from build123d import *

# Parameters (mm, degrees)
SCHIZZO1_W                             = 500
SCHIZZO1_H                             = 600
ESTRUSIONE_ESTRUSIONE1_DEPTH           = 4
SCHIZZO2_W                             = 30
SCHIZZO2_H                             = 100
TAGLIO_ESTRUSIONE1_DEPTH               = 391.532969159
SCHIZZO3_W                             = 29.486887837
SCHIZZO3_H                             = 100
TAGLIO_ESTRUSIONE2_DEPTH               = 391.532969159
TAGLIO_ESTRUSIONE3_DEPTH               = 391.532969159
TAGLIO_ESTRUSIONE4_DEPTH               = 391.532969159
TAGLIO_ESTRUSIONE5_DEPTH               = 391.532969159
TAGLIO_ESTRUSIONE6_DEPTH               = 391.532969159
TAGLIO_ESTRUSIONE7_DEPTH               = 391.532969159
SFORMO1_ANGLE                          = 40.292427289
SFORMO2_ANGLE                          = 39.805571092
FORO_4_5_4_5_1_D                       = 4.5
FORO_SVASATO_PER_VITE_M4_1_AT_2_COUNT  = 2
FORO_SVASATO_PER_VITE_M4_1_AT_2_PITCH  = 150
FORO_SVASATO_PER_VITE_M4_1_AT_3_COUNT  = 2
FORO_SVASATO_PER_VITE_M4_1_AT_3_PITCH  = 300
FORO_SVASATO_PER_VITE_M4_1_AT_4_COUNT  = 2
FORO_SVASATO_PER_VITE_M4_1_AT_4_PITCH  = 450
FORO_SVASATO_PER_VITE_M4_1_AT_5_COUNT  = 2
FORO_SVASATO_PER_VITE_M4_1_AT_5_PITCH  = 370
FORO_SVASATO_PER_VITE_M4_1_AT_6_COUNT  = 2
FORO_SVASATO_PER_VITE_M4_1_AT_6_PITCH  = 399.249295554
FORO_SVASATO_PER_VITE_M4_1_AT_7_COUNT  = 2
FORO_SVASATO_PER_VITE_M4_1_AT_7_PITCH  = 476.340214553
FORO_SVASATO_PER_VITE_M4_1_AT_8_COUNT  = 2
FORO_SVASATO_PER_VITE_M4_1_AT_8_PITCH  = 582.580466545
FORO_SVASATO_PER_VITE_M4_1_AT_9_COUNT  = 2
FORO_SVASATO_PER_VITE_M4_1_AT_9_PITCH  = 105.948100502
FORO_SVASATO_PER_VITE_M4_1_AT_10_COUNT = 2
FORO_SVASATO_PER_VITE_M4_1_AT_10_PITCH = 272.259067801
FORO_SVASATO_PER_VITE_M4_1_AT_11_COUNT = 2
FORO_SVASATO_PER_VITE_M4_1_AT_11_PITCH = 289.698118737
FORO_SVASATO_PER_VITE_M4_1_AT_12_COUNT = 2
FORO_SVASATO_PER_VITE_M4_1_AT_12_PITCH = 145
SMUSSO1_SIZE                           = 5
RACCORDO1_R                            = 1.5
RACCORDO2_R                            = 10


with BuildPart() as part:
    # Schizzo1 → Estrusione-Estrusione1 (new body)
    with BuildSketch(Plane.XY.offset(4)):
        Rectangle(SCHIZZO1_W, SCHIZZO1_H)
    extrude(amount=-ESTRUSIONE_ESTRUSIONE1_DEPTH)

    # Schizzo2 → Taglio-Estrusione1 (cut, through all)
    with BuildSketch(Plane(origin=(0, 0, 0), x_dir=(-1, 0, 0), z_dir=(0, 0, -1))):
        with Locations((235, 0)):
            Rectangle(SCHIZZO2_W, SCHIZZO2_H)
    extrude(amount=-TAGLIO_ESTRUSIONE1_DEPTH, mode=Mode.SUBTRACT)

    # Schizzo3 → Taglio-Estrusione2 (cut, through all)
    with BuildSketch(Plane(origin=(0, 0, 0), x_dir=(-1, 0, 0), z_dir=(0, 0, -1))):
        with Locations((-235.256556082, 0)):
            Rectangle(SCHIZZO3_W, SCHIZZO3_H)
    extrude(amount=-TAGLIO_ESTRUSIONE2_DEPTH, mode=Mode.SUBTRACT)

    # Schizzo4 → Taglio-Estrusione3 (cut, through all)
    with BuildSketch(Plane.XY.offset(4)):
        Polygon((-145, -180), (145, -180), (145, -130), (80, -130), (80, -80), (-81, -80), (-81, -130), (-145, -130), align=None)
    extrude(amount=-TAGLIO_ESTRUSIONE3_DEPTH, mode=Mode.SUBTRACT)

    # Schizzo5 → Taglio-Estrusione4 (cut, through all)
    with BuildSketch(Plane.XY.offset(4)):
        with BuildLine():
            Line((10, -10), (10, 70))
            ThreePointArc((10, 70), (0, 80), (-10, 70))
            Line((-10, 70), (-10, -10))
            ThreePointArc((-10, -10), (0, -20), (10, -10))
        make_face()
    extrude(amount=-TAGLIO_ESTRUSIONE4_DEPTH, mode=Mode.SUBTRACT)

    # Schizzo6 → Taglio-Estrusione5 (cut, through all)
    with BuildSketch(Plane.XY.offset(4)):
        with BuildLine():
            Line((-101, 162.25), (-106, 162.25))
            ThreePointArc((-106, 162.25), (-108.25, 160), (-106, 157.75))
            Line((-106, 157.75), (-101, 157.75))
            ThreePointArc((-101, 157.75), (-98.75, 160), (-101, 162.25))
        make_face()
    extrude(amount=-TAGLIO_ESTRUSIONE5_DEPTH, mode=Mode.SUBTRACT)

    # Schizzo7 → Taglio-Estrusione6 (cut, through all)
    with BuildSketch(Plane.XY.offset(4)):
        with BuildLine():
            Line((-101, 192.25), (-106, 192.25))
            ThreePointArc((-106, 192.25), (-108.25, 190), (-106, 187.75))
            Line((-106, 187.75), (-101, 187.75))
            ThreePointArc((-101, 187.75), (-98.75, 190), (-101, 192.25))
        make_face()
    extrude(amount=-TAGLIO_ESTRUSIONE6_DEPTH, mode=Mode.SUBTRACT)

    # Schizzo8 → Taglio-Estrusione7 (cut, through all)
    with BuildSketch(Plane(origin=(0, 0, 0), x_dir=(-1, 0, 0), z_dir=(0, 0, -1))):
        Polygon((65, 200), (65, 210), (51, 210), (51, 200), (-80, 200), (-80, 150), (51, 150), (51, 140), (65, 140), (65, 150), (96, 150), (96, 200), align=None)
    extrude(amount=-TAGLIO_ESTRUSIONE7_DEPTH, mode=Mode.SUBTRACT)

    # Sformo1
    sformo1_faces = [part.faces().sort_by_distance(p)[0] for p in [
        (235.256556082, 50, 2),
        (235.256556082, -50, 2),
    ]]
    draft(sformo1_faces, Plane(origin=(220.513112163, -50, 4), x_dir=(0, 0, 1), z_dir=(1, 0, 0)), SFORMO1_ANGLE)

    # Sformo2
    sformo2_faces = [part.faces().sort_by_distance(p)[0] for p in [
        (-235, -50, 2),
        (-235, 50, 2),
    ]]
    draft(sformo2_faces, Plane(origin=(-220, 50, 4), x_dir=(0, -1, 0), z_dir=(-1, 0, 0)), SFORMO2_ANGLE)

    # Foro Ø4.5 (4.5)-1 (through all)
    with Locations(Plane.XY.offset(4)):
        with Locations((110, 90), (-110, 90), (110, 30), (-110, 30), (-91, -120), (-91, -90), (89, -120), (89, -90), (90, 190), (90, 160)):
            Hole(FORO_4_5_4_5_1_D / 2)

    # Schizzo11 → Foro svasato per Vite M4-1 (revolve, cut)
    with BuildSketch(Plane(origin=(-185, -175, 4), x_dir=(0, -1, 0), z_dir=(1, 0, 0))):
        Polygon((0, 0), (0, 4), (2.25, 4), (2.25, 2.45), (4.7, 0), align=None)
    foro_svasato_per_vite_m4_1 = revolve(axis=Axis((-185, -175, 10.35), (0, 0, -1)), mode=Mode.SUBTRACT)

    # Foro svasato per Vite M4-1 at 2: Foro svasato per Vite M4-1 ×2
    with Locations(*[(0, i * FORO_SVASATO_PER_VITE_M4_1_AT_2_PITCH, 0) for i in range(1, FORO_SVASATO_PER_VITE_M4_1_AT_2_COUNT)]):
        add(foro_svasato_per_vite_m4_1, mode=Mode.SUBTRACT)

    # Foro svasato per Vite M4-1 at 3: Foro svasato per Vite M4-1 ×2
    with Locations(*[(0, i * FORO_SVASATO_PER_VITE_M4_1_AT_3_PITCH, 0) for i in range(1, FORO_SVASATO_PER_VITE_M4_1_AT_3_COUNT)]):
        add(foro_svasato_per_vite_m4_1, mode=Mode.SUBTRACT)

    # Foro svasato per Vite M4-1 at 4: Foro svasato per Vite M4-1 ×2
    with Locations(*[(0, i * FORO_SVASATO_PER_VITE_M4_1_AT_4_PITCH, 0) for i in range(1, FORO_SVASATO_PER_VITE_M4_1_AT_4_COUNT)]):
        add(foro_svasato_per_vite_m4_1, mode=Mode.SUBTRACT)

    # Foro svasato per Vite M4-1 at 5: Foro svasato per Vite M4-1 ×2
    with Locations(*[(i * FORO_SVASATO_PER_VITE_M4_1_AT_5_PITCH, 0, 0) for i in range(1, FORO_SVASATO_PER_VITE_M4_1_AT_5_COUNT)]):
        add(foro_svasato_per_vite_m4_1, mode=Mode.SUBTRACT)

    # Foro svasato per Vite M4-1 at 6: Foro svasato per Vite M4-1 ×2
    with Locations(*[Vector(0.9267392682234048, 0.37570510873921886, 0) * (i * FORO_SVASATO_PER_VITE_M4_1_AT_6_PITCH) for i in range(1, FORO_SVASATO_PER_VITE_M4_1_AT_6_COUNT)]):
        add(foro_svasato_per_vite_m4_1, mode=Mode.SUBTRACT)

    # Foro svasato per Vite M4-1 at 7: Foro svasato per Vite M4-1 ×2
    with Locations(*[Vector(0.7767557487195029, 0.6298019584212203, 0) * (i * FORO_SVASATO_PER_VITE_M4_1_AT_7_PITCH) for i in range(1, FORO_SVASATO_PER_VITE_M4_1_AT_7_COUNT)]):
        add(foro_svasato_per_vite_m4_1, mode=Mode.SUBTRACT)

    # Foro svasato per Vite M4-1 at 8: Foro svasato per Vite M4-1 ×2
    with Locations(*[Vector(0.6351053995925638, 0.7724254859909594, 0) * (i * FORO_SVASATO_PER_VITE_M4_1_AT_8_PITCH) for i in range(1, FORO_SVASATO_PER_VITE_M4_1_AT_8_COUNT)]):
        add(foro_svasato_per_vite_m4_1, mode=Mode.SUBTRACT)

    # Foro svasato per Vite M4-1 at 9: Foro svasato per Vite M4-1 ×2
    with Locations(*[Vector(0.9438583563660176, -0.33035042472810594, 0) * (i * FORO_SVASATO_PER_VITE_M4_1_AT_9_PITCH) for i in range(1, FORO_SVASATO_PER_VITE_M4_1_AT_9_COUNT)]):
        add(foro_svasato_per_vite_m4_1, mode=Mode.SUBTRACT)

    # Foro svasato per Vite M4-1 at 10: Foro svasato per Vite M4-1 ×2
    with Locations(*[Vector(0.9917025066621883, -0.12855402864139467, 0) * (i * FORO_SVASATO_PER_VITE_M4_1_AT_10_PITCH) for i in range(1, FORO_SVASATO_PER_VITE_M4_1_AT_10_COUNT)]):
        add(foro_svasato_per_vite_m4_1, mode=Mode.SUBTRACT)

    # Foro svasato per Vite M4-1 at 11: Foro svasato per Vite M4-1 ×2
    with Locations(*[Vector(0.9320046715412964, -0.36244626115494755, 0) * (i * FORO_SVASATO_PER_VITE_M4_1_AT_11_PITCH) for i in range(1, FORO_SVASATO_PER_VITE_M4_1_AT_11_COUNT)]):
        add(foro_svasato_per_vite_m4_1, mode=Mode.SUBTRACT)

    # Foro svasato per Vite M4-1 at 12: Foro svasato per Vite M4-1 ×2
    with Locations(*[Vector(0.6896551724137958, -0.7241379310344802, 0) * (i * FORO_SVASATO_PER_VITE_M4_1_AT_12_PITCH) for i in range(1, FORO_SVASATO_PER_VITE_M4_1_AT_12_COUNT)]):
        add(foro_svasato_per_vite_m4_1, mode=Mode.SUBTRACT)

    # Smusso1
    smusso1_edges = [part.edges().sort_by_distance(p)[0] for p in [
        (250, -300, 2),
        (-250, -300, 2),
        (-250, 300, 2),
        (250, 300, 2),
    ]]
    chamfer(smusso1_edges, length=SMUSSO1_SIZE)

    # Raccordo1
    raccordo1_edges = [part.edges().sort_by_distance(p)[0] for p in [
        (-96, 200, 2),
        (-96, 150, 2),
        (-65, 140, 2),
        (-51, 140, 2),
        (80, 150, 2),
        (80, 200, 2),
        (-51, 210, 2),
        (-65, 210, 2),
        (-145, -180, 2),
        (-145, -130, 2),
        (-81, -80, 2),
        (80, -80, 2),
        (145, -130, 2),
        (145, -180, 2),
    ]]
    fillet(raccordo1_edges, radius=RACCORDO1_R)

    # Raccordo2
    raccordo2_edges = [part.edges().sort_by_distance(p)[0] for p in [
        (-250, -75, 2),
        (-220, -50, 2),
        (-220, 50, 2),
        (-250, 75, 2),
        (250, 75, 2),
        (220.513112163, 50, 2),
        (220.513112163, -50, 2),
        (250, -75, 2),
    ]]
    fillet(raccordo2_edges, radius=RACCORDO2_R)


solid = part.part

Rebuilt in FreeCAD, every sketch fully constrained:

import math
import FreeCAD as App
import Part
import Sketcher
Q = App.Units.Quantity


def edges_at(feature, points):
    """Names of the edges that pass closest to the given points."""
    edges = feature.Shape.Edges
    near = lambda p: min(range(len(edges)), key=lambda i: edges[i].distToShape(Part.Vertex(*p))[0])
    return sorted({f"Edge{near(p) + 1}" for p in points})


def faces_at(feature, points):
    """Names of the faces that lie closest to the given points."""
    faces = feature.Shape.Faces
    near = lambda p: min(range(len(faces)), key=lambda i: faces[i].distToShape(Part.Vertex(*p))[0])
    return sorted({f"Face{near(p) + 1}" for p in points})


def add_polygon(sketch, points):
    """Adds a closed chain of lines whose ends are joined by coincident constraints."""
    first, n = sketch.GeometryCount, len(points)
    for a, b in zip(points, points[1:] + points[:1]):
        sketch.addGeometry(Part.LineSegment(App.Vector(*a, 0), App.Vector(*b, 0)), False)
    for i in range(n):
        sketch.addConstraint(Sketcher.Constraint("Coincident", first + i, 2, first + (i + 1) % n, 1))

doc = App.newDocument("Part")
body = doc.addObject("PartDesign::Body", "Body")

# Sketch on XY plane
sketch1 = doc.addObject("Sketcher::SketchObject", "Sketch")
body.addObject(sketch1)
sketch1.AttachmentSupport = (doc.XY_Plane, [""])
sketch1.MapMode = "FlatFace"
sketch1.AttachmentOffset = App.Placement(App.Vector(0, 0, 4), App.Rotation())
add_polygon(sketch1, [(-250, 300), (-250, -300), (250, -300), (250, 300)])  # lines 0-3
sketch1.addConstraint([
    Sketcher.Constraint("Vertical", 0),
    Sketcher.Constraint("Horizontal", 1),
    Sketcher.Constraint("Vertical", 2),
    Sketcher.Constraint("Horizontal", 3),
    Sketcher.Constraint("Symmetric", 0, 2, 2, 2, -1, 1),
    Sketcher.Constraint("DistanceX", 1, 1, 1, 2, 500.0),
    Sketcher.Constraint("DistanceY", 0, 2, 0, 1, 600.0),
])
pad1 = doc.addObject("PartDesign::Pad", "Pad")
body.addObject(pad1)
pad1.Profile = sketch1
pad1.Length = 4
pad1.Reversed = True

# Sketch on XY plane
sketch2 = doc.addObject("Sketcher::SketchObject", "Sketch001")
body.addObject(sketch2)
sketch2.AttachmentSupport = (doc.XY_Plane, [""])
sketch2.MapMode = "FlatFace"
add_polygon(sketch2, [(-220, 50), (-220, -50), (-250, -50), (-250, 50)])  # lines 0-3
sketch2.addConstraint([
    Sketcher.Constraint("Vertical", 0),
    Sketcher.Constraint("Horizontal", 1),
    Sketcher.Constraint("Vertical", 2),
    Sketcher.Constraint("Horizontal", 3),
    Sketcher.Constraint("DistanceX", 1, 2, 1, 1, 30.0),
    Sketcher.Constraint("DistanceY", 0, 2, 0, 1, 100.0),
    Sketcher.Constraint("DistanceX", 0, 2, -1, 1, 220.0),
    Sketcher.Constraint("DistanceY", 0, 2, -1, 1, 50.0),
])
pocket1 = doc.addObject("PartDesign::Pocket", "Pocket")
body.addObject(pocket1)
pocket1.Profile = sketch2
pocket1.Type = "ThroughAll"
pocket1.Reversed = True

# Sketch on XY plane
sketch3 = doc.addObject("Sketcher::SketchObject", "Sketch002")
body.addObject(sketch3)
sketch3.AttachmentSupport = (doc.XY_Plane, [""])
sketch3.MapMode = "FlatFace"
add_polygon(sketch3, [(250, 50), (250, -50), (221, -50), (221, 50)])  # lines 0-3
sketch3.addConstraint([
    Sketcher.Constraint("Vertical", 0),
    Sketcher.Constraint("Horizontal", 1),
    Sketcher.Constraint("Vertical", 2),
    Sketcher.Constraint("Horizontal", 3),
    Sketcher.Constraint("DistanceY", 0, 2, 0, 1, 100.0),
    Sketcher.Constraint("DistanceX", -1, 1, 0, 2, 250.0),
    Sketcher.Constraint("DistanceY", 0, 2, -1, 1, 50.0),
    Sketcher.Constraint("DistanceX", 1, 2, 1, 1, 29.486888),
])
pocket2 = doc.addObject("PartDesign::Pocket", "Pocket001")
body.addObject(pocket2)
pocket2.Profile = sketch3
pocket2.Type = "ThroughAll"
pocket2.Reversed = True

# Sketch on XY plane
sketch4 = doc.addObject("Sketcher::SketchObject", "Sketch003")
body.addObject(sketch4)
sketch4.AttachmentSupport = (doc.XY_Plane, [""])
sketch4.MapMode = "FlatFace"
sketch4.AttachmentOffset = App.Placement(App.Vector(0, 0, 4), App.Rotation())
add_polygon(sketch4, [(-145, -180), (145, -180), (145, -130), (80, -130), (80, -80), (-81, -80), (-81, -130), (-145, -130)])  # lines 0-7
sketch4.addConstraint([
    Sketcher.Constraint("Horizontal", 0),
    Sketcher.Constraint("Vertical", 1),
    Sketcher.Constraint("Horizontal", 2),
    Sketcher.Constraint("Vertical", 3),
    Sketcher.Constraint("Horizontal", 4),
    Sketcher.Constraint("Vertical", 5),
    Sketcher.Constraint("Horizontal", 6),
    Sketcher.Constraint("Vertical", 7),
    Sketcher.Constraint("Symmetric", 1, 2, 6, 2, -2),
    Sketcher.Constraint("Equal", 1, 3),
    Sketcher.Constraint("DistanceX", 0, 1, 0, 2, 290.0),
    Sketcher.Constraint("DistanceX", 2, 2, 2, 1, 65.0),
    Sketcher.Constraint("DistanceX", 4, 2, 4, 1, 161.0),
    Sketcher.Constraint("DistanceY", 1, 1, 1, 2, 50.0),
    Sketcher.Constraint("DistanceY", 0, 2, -1, 1, 180.0),
])
pocket3 = doc.addObject("PartDesign::Pocket", "Pocket002")
body.addObject(pocket3)
pocket3.Profile = sketch4
pocket3.Type = "ThroughAll"

# Sketch on XY plane
sketch5 = doc.addObject("Sketcher::SketchObject", "Sketch004")
body.addObject(sketch5)
sketch5.AttachmentSupport = (doc.XY_Plane, [""])
sketch5.MapMode = "FlatFace"
sketch5.AttachmentOffset = App.Placement(App.Vector(0, 0, 4), App.Rotation())
sketch5.addGeometry([
    Part.LineSegment(App.Vector(10, -10, 0), App.Vector(10, 70, 0)),
    Part.ArcOfCircle(Part.Circle(App.Vector(0, 70, 0), App.Vector(0, 0, 1), 10), math.radians(0), math.radians(180)),
    Part.LineSegment(App.Vector(-10, 70, 0), App.Vector(-10, -10, 0)),
    Part.ArcOfCircle(Part.Circle(App.Vector(0, -10, 0), App.Vector(0, 0, 1), 10), math.radians(180), math.radians(360)),
], False)
sketch5.addConstraint([
    Sketcher.Constraint("Tangent", 0, 2, 1, 1),
    Sketcher.Constraint("Tangent", 1, 2, 2, 1),
    Sketcher.Constraint("Tangent", 2, 2, 3, 1),
    Sketcher.Constraint("Tangent", 3, 2, 0, 1),
    Sketcher.Constraint("Vertical", 0),
    Sketcher.Constraint("Vertical", 2),
    Sketcher.Constraint("PointOnObject", 1, 3, -2),
    Sketcher.Constraint("Radius", 1, 10.0),
    Sketcher.Constraint("DistanceY", 0, 1, 0, 2, 80.0),
    Sketcher.Constraint("DistanceY", -1, 1, 1, 3, 70.0),
])
pocket4 = doc.addObject("PartDesign::Pocket", "Pocket003")
body.addObject(pocket4)
pocket4.Profile = sketch5
pocket4.Type = "ThroughAll"

# Sketch on XY plane
sketch6 = doc.addObject("Sketcher::SketchObject", "Sketch005")
body.addObject(sketch6)
sketch6.AttachmentSupport = (doc.XY_Plane, [""])
sketch6.MapMode = "FlatFace"
sketch6.AttachmentOffset = App.Placement(App.Vector(0, 0, 4), App.Rotation())
sketch6.addGeometry([
    Part.LineSegment(App.Vector(-101, 162.2, 0), App.Vector(-106, 162.2, 0)),
    Part.ArcOfCircle(Part.Circle(App.Vector(-106, 160, 0), App.Vector(0, 0, 1), 2.2), math.radians(90), math.radians(270)),
    Part.LineSegment(App.Vector(-106, 157.8, 0), App.Vector(-101, 157.8, 0)),
    Part.ArcOfCircle(Part.Circle(App.Vector(-101, 160, 0), App.Vector(0, 0, 1), 2.2), math.radians(-90), math.radians(90)),
], False)
sketch6.addConstraint([
    Sketcher.Constraint("Tangent", 0, 2, 1, 1),
    Sketcher.Constraint("Tangent", 1, 2, 2, 1),
    Sketcher.Constraint("Tangent", 2, 2, 3, 1),
    Sketcher.Constraint("Tangent", 3, 2, 0, 1),
    Sketcher.Constraint("Horizontal", 0),
    Sketcher.Constraint("Horizontal", 2),
    Sketcher.Constraint("DistanceX", 0, 2, 0, 1, 5.0),
    Sketcher.Constraint("Radius", 1, 2.25),
    Sketcher.Constraint("DistanceX", 1, 3, -1, 1, 106.0),
    Sketcher.Constraint("DistanceY", -1, 1, 1, 3, 160.0),
])
pocket5 = doc.addObject("PartDesign::Pocket", "Pocket004")
body.addObject(pocket5)
pocket5.Profile = sketch6
pocket5.Type = "ThroughAll"

# Sketch on XY plane
sketch7 = doc.addObject("Sketcher::SketchObject", "Sketch006")
body.addObject(sketch7)
sketch7.AttachmentSupport = (doc.XY_Plane, [""])
sketch7.MapMode = "FlatFace"
sketch7.AttachmentOffset = App.Placement(App.Vector(0, 0, 4), App.Rotation())
sketch7.addGeometry([
    Part.LineSegment(App.Vector(-101, 192.2, 0), App.Vector(-106, 192.2, 0)),
    Part.ArcOfCircle(Part.Circle(App.Vector(-106, 190, 0), App.Vector(0, 0, 1), 2.2), math.radians(90), math.radians(270)),
    Part.LineSegment(App.Vector(-106, 187.8, 0), App.Vector(-101, 187.8, 0)),
    Part.ArcOfCircle(Part.Circle(App.Vector(-101, 190, 0), App.Vector(0, 0, 1), 2.2), math.radians(-90), math.radians(90)),
], False)
sketch7.addConstraint([
    Sketcher.Constraint("Tangent", 0, 2, 1, 1),
    Sketcher.Constraint("Tangent", 1, 2, 2, 1),
    Sketcher.Constraint("Tangent", 2, 2, 3, 1),
    Sketcher.Constraint("Tangent", 3, 2, 0, 1),
    Sketcher.Constraint("Horizontal", 0),
    Sketcher.Constraint("Horizontal", 2),
    Sketcher.Constraint("DistanceX", 0, 2, 0, 1, 5.0),
    Sketcher.Constraint("Radius", 1, 2.25),
    Sketcher.Constraint("DistanceX", 1, 3, -1, 1, 106.0),
    Sketcher.Constraint("DistanceY", -1, 1, 1, 3, 190.0),
])
pocket6 = doc.addObject("PartDesign::Pocket", "Pocket005")
body.addObject(pocket6)
pocket6.Profile = sketch7
pocket6.Type = "ThroughAll"

# Sketch on XY plane
sketch8 = doc.addObject("Sketcher::SketchObject", "Sketch007")
body.addObject(sketch8)
sketch8.AttachmentSupport = (doc.XY_Plane, [""])
sketch8.MapMode = "FlatFace"
add_polygon(sketch8, [(-65, 200), (-65, 210), (-51, 210), (-51, 200), (80, 200), (80, 150), (-51, 150), (-51, 140), (-65, 140), (-65, 150), (-96, 150), (-96, 200)])  # lines 0-11
sketch8.addConstraint([
    Sketcher.Constraint("Vertical", 0),
    Sketcher.Constraint("Horizontal", 1),
    Sketcher.Constraint("Vertical", 2),
    Sketcher.Constraint("Horizontal", 3),
    Sketcher.Constraint("Vertical", 4),
    Sketcher.Constraint("Horizontal", 5),
    Sketcher.Constraint("Vertical", 6),
    Sketcher.Constraint("Horizontal", 7),
    Sketcher.Constraint("Vertical", 8),
    Sketcher.Constraint("Horizontal", 9),
    Sketcher.Constraint("Vertical", 10),
    Sketcher.Constraint("Horizontal", 11),
    Sketcher.Constraint("Horizontal", 5, 2, 8, 2),
    Sketcher.Constraint("Horizontal", 3, 2, 10, 2),
    Sketcher.Constraint("Vertical", 2, 2, 5, 2),
    Sketcher.Constraint("Vertical", 0, 2, 7, 2),
    Sketcher.Constraint("Equal", 2, 6),
    Sketcher.Constraint("DistanceX", 1, 1, 1, 2, 14.0),
    Sketcher.Constraint("DistanceX", 3, 1, 3, 2, 131.0),
    Sketcher.Constraint("DistanceX", 9, 2, 9, 1, 31.0),
    Sketcher.Constraint("DistanceY", 0, 1, 0, 2, 10.0),
    Sketcher.Constraint("DistanceY", 4, 2, 4, 1, 50.0),
    Sketcher.Constraint("DistanceX", 0, 2, -1, 1, 65.0),
    Sketcher.Constraint("DistanceY", -1, 1, 0, 2, 210.0),
])
pocket7 = doc.addObject("PartDesign::Pocket", "Pocket006")
body.addObject(pocket7)
pocket7.Profile = sketch8
pocket7.Type = "ThroughAll"
pocket7.Reversed = True
doc.recompute()

datumplane = doc.addObject("PartDesign::Plane", "DatumPlane")
body.addObject(datumplane)
datumplane.AttachmentSupport = (doc.YZ_Plane, [""])
datumplane.MapMode = "FlatFace"
datumplane.AttachmentOffset = App.Placement(App.Vector(0, 0, 220.513112), App.Rotation())
draft = doc.addObject("PartDesign::Draft", "Draft")
body.addObject(draft)
draft.Base = (pocket7, faces_at(pocket7, [(235.257, 50, 2), (235.257, -50, 2)]))
draft.NeutralPlane = (datumplane, [""])
draft.Angle = 40.292427
draft.Reversed = False
doc.recompute()

datumplane2 = doc.addObject("PartDesign::Plane", "DatumPlane001")
body.addObject(datumplane2)
datumplane2.AttachmentSupport = (doc.YZ_Plane, [""])
datumplane2.MapMode = "FlatFace"
datumplane2.AttachmentOffset = App.Placement(App.Vector(0, 0, -220), App.Rotation())
draft2 = doc.addObject("PartDesign::Draft", "Draft001")
body.addObject(draft2)
draft2.Base = (draft, faces_at(draft, [(-235, -50, 2), (-235, 50, 2)]))
draft2.NeutralPlane = (datumplane2, [""])
draft2.Angle = 39.805571
draft2.Reversed = True

# Sketch on XY plane
sketch9 = doc.addObject("Sketcher::SketchObject", "Sketch008")
body.addObject(sketch9)
sketch9.AttachmentSupport = (doc.XY_Plane, [""])
sketch9.MapMode = "FlatFace"
sketch9.AttachmentOffset = App.Placement(App.Vector(0, 0, 4), App.Rotation())
sketch9.addGeometry([
    Part.Circle(App.Vector(110, 90, 0), App.Vector(0, 0, 1), 2.2),  # 0
    Part.Circle(App.Vector(-110, 90, 0), App.Vector(0, 0, 1), 2.2),  # 1
    Part.Circle(App.Vector(110, 30, 0), App.Vector(0, 0, 1), 2.2),  # 2
    Part.Circle(App.Vector(-110, 30, 0), App.Vector(0, 0, 1), 2.2),  # 3
    Part.Circle(App.Vector(-91, -120, 0), App.Vector(0, 0, 1), 2.2),  # 4
    Part.Circle(App.Vector(-91, -90, 0), App.Vector(0, 0, 1), 2.2),  # 5
    Part.Circle(App.Vector(89, -120, 0), App.Vector(0, 0, 1), 2.2),  # 6
    Part.Circle(App.Vector(89, -90, 0), App.Vector(0, 0, 1), 2.2),  # 7
    Part.Circle(App.Vector(90, 190, 0), App.Vector(0, 0, 1), 2.2),  # 8
    Part.Circle(App.Vector(90, 160, 0), App.Vector(0, 0, 1), 2.2),  # 9
], False)
sketch9.addConstraint([
    Sketcher.Constraint("Equal", 0, 1),
    Sketcher.Constraint("Equal", 1, 2),
    Sketcher.Constraint("Equal", 2, 3),
    Sketcher.Constraint("Equal", 3, 4),
    Sketcher.Constraint("Equal", 4, 5),
    Sketcher.Constraint("Equal", 5, 6),
    Sketcher.Constraint("Equal", 6, 7),
    Sketcher.Constraint("Equal", 7, 8),
    Sketcher.Constraint("Equal", 8, 9),
    Sketcher.Constraint("Symmetric", 0, 3, 1, 3, -2),
    Sketcher.Constraint("Symmetric", 2, 3, 3, 3, -2),
    Sketcher.Constraint("Horizontal", 4, 3, 6, 3),
    Sketcher.Constraint("Horizontal", 5, 3, 7, 3),
    Sketcher.Constraint("Vertical", 0, 3, 2, 3),
    Sketcher.Constraint("Vertical", 4, 3, 5, 3),
    Sketcher.Constraint("Vertical", 6, 3, 7, 3),
    Sketcher.Constraint("Vertical", 8, 3, 9, 3),
    Sketcher.Constraint("Diameter", 0, 4.5),
    Sketcher.Constraint("DistanceX", -1, 1, 0, 3, 110.0),
    Sketcher.Constraint("DistanceY", -1, 1, 0, 3, 90.0),
    Sketcher.Constraint("DistanceY", -1, 1, 2, 3, 30.0),
    Sketcher.Constraint("DistanceX", 4, 3, -1, 1, 91.0),
    Sketcher.Constraint("DistanceY", 4, 3, -1, 1, 120.0),
    Sketcher.Constraint("DistanceY", 5, 3, -1, 1, 90.0),
    Sketcher.Constraint("DistanceX", -1, 1, 6, 3, 89.0),
    Sketcher.Constraint("DistanceX", -1, 1, 8, 3, 90.0),
    Sketcher.Constraint("DistanceY", -1, 1, 8, 3, 190.0),
    Sketcher.Constraint("DistanceY", -1, 1, 9, 3, 160.0),
])
doc.recompute()
hole = doc.addObject("PartDesign::Hole", "Hole")
body.addObject(hole)
hole.Profile = sketch9
hole.ThreadType = "None"
hole.Diameter = 4.5
hole.DepthType = "ThroughAll"

# Sketch on YZ plane
sketch10 = doc.addObject("Sketcher::SketchObject", "Sketch009")
body.addObject(sketch10)
sketch10.AttachmentSupport = (doc.YZ_Plane, [""])
sketch10.MapMode = "FlatFace"
sketch10.AttachmentOffset = App.Placement(App.Vector(0, 0, -185), App.Rotation())
add_polygon(sketch10, [(-175, 0), (-175, 4), (-179.7, 4), (-177.2, 1.6), (-177.2, 0)])  # lines 0-4
sketch10.addGeometry(Part.LineSegment(App.Vector(-175, 4, 0), App.Vector(-175, 0, 0)), True)  # axis
sketch10.addConstraint([
    Sketcher.Constraint("Vertical", 0),
    Sketcher.Constraint("Horizontal", 1),
    Sketcher.Constraint("Vertical", 3),
    Sketcher.Constraint("Horizontal", 4),
    Sketcher.Constraint("Vertical", 5),
    Sketcher.Constraint("Coincident", 5, 1, 0, 2),
    Sketcher.Constraint("PointOnObject", 3, 2, -1),
    Sketcher.Constraint("PointOnObject", 5, 2, -1),
    Sketcher.Constraint("DistanceY", 0, 1, 0, 2, 4.0),
    Sketcher.Constraint("Angle", 2, Q("-45 deg")),
    Sketcher.Constraint("DistanceX", 1, 2, 1, 1, 4.7),
    Sketcher.Constraint("DistanceX", 0, 2, -1, 1, 175.0),
    Sketcher.Constraint("DistanceX", 4, 1, 4, 2, 2.25),
])
groove = doc.addObject("PartDesign::Groove", "Groove")
body.addObject(groove)
groove.Profile = sketch10
groove.ReferenceAxis = (sketch10, ["Axis0"])
groove.Angle = 360
doc.recompute()

linearpattern = doc.addObject("PartDesign::LinearPattern", "LinearPattern")
body.addObject(linearpattern)
linearpattern.Originals = [groove]
linearpattern.Direction = (doc.Y_Axis, [""])
linearpattern.Mode = "offset"
linearpattern.Offset = 150
linearpattern.Occurrences = 2
body.Tip = linearpattern
doc.recompute()

linearpattern2 = doc.addObject("PartDesign::LinearPattern", "LinearPattern001")
body.addObject(linearpattern2)
linearpattern2.Originals = [groove]
linearpattern2.Direction = (doc.Y_Axis, [""])
linearpattern2.Mode = "offset"
linearpattern2.Offset = 300
linearpattern2.Occurrences = 2
body.Tip = linearpattern2
doc.recompute()

linearpattern3 = doc.addObject("PartDesign::LinearPattern", "LinearPattern002")
body.addObject(linearpattern3)
linearpattern3.Originals = [groove]
linearpattern3.Direction = (doc.Y_Axis, [""])
linearpattern3.Mode = "offset"
linearpattern3.Offset = 450
linearpattern3.Occurrences = 2
body.Tip = linearpattern3
doc.recompute()

linearpattern4 = doc.addObject("PartDesign::LinearPattern", "LinearPattern003")
body.addObject(linearpattern4)
linearpattern4.Originals = [groove]
linearpattern4.Direction = (doc.X_Axis, [""])
linearpattern4.Mode = "offset"
linearpattern4.Offset = 370
linearpattern4.Occurrences = 2
body.Tip = linearpattern4
doc.recompute()

datumline = doc.addObject("PartDesign::Line", "DatumLine")
body.addObject(datumline)
datumline.Placement = App.Placement(App.Vector(0, 0, 0), App.Rotation(App.Vector(0, 0, 1), App.Vector(0.926739268, 0.375705109, 0)))
linearpattern5 = doc.addObject("PartDesign::LinearPattern", "LinearPattern004")
body.addObject(linearpattern5)
linearpattern5.Originals = [groove]
linearpattern5.Direction = (datumline, [""])
linearpattern5.Mode = "offset"
linearpattern5.Offset = 399.249296
linearpattern5.Occurrences = 2
body.Tip = linearpattern5
doc.recompute()

datumline2 = doc.addObject("PartDesign::Line", "DatumLine001")
body.addObject(datumline2)
datumline2.Placement = App.Placement(App.Vector(0, 0, 0), App.Rotation(App.Vector(0, 0, 1), App.Vector(0.776755749, 0.629801958, 0)))
linearpattern6 = doc.addObject("PartDesign::LinearPattern", "LinearPattern005")
body.addObject(linearpattern6)
linearpattern6.Originals = [groove]
linearpattern6.Direction = (datumline2, [""])
linearpattern6.Mode = "offset"
linearpattern6.Offset = 476.340215
linearpattern6.Occurrences = 2
body.Tip = linearpattern6
doc.recompute()

datumline3 = doc.addObject("PartDesign::Line", "DatumLine002")
body.addObject(datumline3)
datumline3.Placement = App.Placement(App.Vector(0, 0, 0), App.Rotation(App.Vector(0, 0, 1), App.Vector(0.6351054, 0.772425486, 0)))
linearpattern7 = doc.addObject("PartDesign::LinearPattern", "LinearPattern006")
body.addObject(linearpattern7)
linearpattern7.Originals = [groove]
linearpattern7.Direction = (datumline3, [""])
linearpattern7.Mode = "offset"
linearpattern7.Offset = 582.580467
linearpattern7.Occurrences = 2
body.Tip = linearpattern7
doc.recompute()

datumline4 = doc.addObject("PartDesign::Line", "DatumLine003")
body.addObject(datumline4)
datumline4.Placement = App.Placement(App.Vector(0, 0, 0), App.Rotation(App.Vector(0, 0, 1), App.Vector(0.943858356, -0.330350425, 0)))
linearpattern8 = doc.addObject("PartDesign::LinearPattern", "LinearPattern007")
body.addObject(linearpattern8)
linearpattern8.Originals = [groove]
linearpattern8.Direction = (datumline4, [""])
linearpattern8.Mode = "offset"
linearpattern8.Offset = 105.948101
linearpattern8.Occurrences = 2
body.Tip = linearpattern8
doc.recompute()

datumline5 = doc.addObject("PartDesign::Line", "DatumLine004")
body.addObject(datumline5)
datumline5.Placement = App.Placement(App.Vector(0, 0, 0), App.Rotation(App.Vector(0, 0, 1), App.Vector(0.991702507, -0.128554029, 0)))
linearpattern9 = doc.addObject("PartDesign::LinearPattern", "LinearPattern008")
body.addObject(linearpattern9)
linearpattern9.Originals = [groove]
linearpattern9.Direction = (datumline5, [""])
linearpattern9.Mode = "offset"
linearpattern9.Offset = 272.259068
linearpattern9.Occurrences = 2
body.Tip = linearpattern9
doc.recompute()

datumline6 = doc.addObject("PartDesign::Line", "DatumLine005")
body.addObject(datumline6)
datumline6.Placement = App.Placement(App.Vector(0, 0, 0), App.Rotation(App.Vector(0, 0, 1), App.Vector(0.932004672, -0.362446261, 0)))
linearpattern10 = doc.addObject("PartDesign::LinearPattern", "LinearPattern009")
body.addObject(linearpattern10)
linearpattern10.Originals = [groove]
linearpattern10.Direction = (datumline6, [""])
linearpattern10.Mode = "offset"
linearpattern10.Offset = 289.698119
linearpattern10.Occurrences = 2
body.Tip = linearpattern10
doc.recompute()

datumline7 = doc.addObject("PartDesign::Line", "DatumLine006")
body.addObject(datumline7)
datumline7.Placement = App.Placement(App.Vector(0, 0, 0), App.Rotation(App.Vector(0, 0, 1), App.Vector(0.689655172, -0.724137931, 0)))
linearpattern11 = doc.addObject("PartDesign::LinearPattern", "LinearPattern010")
body.addObject(linearpattern11)
linearpattern11.Originals = [groove]
linearpattern11.Direction = (datumline7, [""])
linearpattern11.Mode = "offset"
linearpattern11.Offset = 145
linearpattern11.Occurrences = 2
body.Tip = linearpattern11
doc.recompute()

chamfer = doc.addObject("PartDesign::Chamfer", "Chamfer")
body.addObject(chamfer)
chamfer.Base = (linearpattern11, edges_at(linearpattern11, [
    (250, -300, 2),
    (-250, -300, 2),
    (-250, 300, 2),
    (250, 300, 2),
]))
chamfer.Size = 5
doc.recompute()

fillet = doc.addObject("PartDesign::Fillet", "Fillet")
body.addObject(fillet)
fillet.Base = (chamfer, edges_at(chamfer, [
    (-96, 200, 2),
    (-96, 150, 2),
    (-65, 140, 2),
    (-51, 140, 2),
    (80, 150, 2),
    (80, 200, 2),
    (-51, 210, 2),
    (-65, 210, 2),
    (-145, -180, 2),
    (-145, -130, 2),
    (-81, -80, 2),
    (80, -80, 2),
    (145, -130, 2),
    (145, -180, 2),
]))
fillet.Radius = 1.5
doc.recompute()

fillet2 = doc.addObject("PartDesign::Fillet", "Fillet001")
body.addObject(fillet2)
fillet2.Base = (fillet, edges_at(fillet, [
    (-250, -75, 2),
    (-220, -50, 2),
    (-220, 50, 2),
    (-250, 75, 2),
    (250, 75, 2),
    (220.513, 50, 2),
    (220.513, -50, 2),
    (250, -75, 2),
]))
fillet2.Radius = 10

doc.recompute()
